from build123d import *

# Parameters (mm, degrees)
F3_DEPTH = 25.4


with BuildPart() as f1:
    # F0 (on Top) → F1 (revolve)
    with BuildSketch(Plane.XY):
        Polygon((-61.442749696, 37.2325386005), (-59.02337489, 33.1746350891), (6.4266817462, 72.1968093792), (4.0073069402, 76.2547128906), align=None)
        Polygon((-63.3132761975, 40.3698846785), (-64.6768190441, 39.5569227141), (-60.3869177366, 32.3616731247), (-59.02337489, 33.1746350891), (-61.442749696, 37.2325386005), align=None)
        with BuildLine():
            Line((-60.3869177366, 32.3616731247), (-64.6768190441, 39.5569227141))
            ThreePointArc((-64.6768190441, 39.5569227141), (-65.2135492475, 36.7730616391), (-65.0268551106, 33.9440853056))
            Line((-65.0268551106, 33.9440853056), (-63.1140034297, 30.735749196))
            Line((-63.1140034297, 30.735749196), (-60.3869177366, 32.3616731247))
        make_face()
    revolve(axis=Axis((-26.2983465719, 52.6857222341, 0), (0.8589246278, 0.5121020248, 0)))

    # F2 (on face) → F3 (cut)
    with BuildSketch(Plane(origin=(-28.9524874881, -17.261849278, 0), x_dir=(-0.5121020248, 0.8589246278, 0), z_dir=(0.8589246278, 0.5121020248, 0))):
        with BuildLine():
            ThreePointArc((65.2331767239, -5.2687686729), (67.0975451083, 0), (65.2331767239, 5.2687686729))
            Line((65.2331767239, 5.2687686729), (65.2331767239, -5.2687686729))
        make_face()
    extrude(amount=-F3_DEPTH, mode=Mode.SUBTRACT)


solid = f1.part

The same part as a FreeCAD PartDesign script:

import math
import FreeCAD as App
import Part
import Sketcher
Q = App.Units.Quantity

doc = App.newDocument("Part")
body = doc.addObject("PartDesign::Body", "Body")

# Sketch on XY plane
sketch1 = doc.addObject("Sketcher::SketchObject", "Sketch")
body.addObject(sketch1)
sketch1.AttachmentSupport = (doc.XY_Plane, [""])
sketch1.MapMode = "FlatFace"
sketch1.addGeometry([
    Part.LineSegment(App.Vector(-59.023375, 33.174635, 0), App.Vector(6.426682, 72.196809, 0)),  # 0
    Part.LineSegment(App.Vector(6.426682, 72.196809, 0), App.Vector(4.007307, 76.254713, 0)),  # 1
    Part.LineSegment(App.Vector(4.007307, 76.254713, 0), App.Vector(-61.44275, 37.232539, 0)),  # 2
    Part.LineSegment(App.Vector(-61.44275, 37.232539, 0), App.Vector(-63.313276, 40.369885, 0)),  # 3
    Part.LineSegment(App.Vector(-63.313276, 40.369885, 0), App.Vector(-64.676819, 39.556923, 0)),  # 4
    Part.ArcOfCircle(Part.Circle(App.Vector(-54.145603, 36.082826, 0), App.Vector(0, 0, 1), 11.089448), math.radians(161.74302), math.radians(191.119895)),  # 5
    Part.LineSegment(App.Vector(-65.026855, 33.944085, 0), App.Vector(-63.114003, 30.735749, 0)),  # 6
    Part.LineSegment(App.Vector(-63.114003, 30.735749, 0), App.Vector(-60.386918, 32.361673, 0)),  # 7
    Part.LineSegment(App.Vector(-60.386918, 32.361673, 0), App.Vector(-59.023375, 33.174635, 0)),  # 8
], False)
sketch1.addGeometry(Part.LineSegment(App.Vector(-63.114003, 30.735749, 0), App.Vector(6.426682, 72.196809, 0)), True)  # axis
sketch1.addConstraint([
    Sketcher.Constraint("Coincident", 0, 2, 1, 1),
    Sketcher.Constraint("Coincident", 1, 2, 2, 1),
    Sketcher.Constraint("Coincident", 2, 2, 3, 1),
    Sketcher.Constraint("Coincident", 3, 2, 4, 1),
    Sketcher.Constraint("Coincident", 4, 2, 5, 1),
    Sketcher.Constraint("Coincident", 5, 2, 6, 1),
    Sketcher.Constraint("Coincident", 6, 2, 7, 1),
    Sketcher.Constraint("Coincident", 7, 2, 8, 1),
    Sketcher.Constraint("Coincident", 8, 2, 0, 1),
    Sketcher.Constraint("Coincident", 9, 1, 6, 2),
    Sketcher.Constraint("Coincident", 9, 2, 0, 2),
    Sketcher.Constraint("Perpendicular", 0, 1),
    Sketcher.Constraint("Perpendicular", 1, 2),
    Sketcher.Constraint("Perpendicular", 2, 3),
    Sketcher.Constraint("Perpendicular", 3, 4),
    Sketcher.Constraint("Perpendicular", 4, 6),
    Sketcher.Constraint("Perpendicular", 6, 7),
    Sketcher.Constraint("Parallel", 7, 8),
    Sketcher.Constraint("Equal", 0, 2),
    Sketcher.Constraint("Equal", 4, 8),
    Sketcher.Constraint("Distance", 0, Q("3 in")),
    Sketcher.Constraint("Distance", 1, Q("0.186 in")),
    Sketcher.Constraint("Distance", 4, Q("0.0625 in")),
    Sketcher.Constraint("Distance", 7, Q("0.125 in")),
    Sketcher.Constraint("Radius", 5, Q("11.089448 mm")),
    Sketcher.Constraint("DistanceX", 4, 2, 0, 2, Q("71.103501 mm")),
    Sketcher.Constraint("DistanceY", 5, 2, 3, 2, Q("6.425799 mm")),
    Sketcher.Constraint("DistanceX", 6, 2, 5, 3, Q("8.9684 mm")),
    Sketcher.Constraint("DistanceX", -1, 1, 0, 2, Q("6.426682 mm")),
    Sketcher.Constraint("DistanceY", -1, 1, 0, 2, Q("72.196809 mm")),
])
revolution = doc.addObject("PartDesign::Revolution", "Revolution")
body.addObject(revolution)
revolution.Profile = sketch1
revolution.ReferenceAxis = (sketch1, ["Axis0"])
revolution.Angle = 360

# Sketch on an angled plane
sketch2 = doc.addObject("Sketcher::SketchObject", "Sketch001")
body.addObject(sketch2)
sketch2.Placement = App.Placement(App.Vector(-28.952487, -17.261849, 0), App.Rotation(App.Vector(-0.512102025, 0.858924628, 0), App.Vector(0, 0, 1.000000001), App.Vector(0.858924628, 0.512102025, 0), "ZXY"))
sketch2.addGeometry([
    Part.ArcOfCircle(Part.Circle(App.Vector(58.720501, 0, 0), App.Vector(0, 0, 1), 8.377044), math.radians(-38.972933), math.radians(38.972933)),
    Part.LineSegment(App.Vector(65.233177, 5.268769, 0), App.Vector(65.233177, -5.268769, 0)),
], False)
sketch2.addConstraint([
    Sketcher.Constraint("Coincident", 0, 1, 1, 2),
    Sketcher.Constraint("Coincident", 1, 1, 0, 2),
    Sketcher.Constraint("Vertical", 1),
    Sketcher.Constraint("PointOnObject", 0, 3, -1),
    Sketcher.Constraint("Radius", 0, Q("8.377044 mm")),
    Sketcher.Constraint("DistanceX", -1, 1, 0, 3, Q("58.720501 mm")),
    Sketcher.Constraint("DistanceY", 1, 2, 1, 1, Q("10.537537 mm")),
])
pocket1 = doc.addObject("PartDesign::Pocket", "Pocket")
body.addObject(pocket1)
pocket1.Profile = sketch2
pocket1.Length = Q("1 in")

doc.recompute()
